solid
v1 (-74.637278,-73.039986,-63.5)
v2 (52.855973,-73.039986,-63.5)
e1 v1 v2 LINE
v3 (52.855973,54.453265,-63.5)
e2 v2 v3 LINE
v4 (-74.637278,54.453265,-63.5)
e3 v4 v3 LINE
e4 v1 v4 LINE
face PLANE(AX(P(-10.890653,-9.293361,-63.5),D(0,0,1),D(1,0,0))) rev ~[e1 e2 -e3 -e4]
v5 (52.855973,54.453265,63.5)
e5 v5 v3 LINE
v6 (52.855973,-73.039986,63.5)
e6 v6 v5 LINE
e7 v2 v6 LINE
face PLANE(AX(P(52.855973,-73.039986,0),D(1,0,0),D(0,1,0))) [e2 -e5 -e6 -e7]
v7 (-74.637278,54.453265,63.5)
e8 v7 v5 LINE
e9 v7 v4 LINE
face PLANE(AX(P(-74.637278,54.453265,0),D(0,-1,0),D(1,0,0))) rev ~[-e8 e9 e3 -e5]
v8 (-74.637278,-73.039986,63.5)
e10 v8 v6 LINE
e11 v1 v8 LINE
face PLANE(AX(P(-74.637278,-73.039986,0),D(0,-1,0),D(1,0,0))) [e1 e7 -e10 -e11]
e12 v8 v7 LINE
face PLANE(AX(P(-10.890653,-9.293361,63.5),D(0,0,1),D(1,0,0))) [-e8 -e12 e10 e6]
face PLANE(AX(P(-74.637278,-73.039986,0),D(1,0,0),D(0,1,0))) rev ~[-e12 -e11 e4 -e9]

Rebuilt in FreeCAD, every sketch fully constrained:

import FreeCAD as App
import Part
import Sketcher
from FreeCAD import Vector
Q = App.Units.Quantity

doc = App.newDocument("Part")
params = doc.addObject("Spreadsheet::Sheet", "Params")
for row, (alias, value) in enumerate([
    ("pad1_length", "5 in"),
], start=1):
    params.set(f"A{row}", alias)
    params.set(f"B{row}", "=" + value)
    params.setAlias(f"B{row}", alias)

body = doc.addObject("PartDesign::Body", "Body")

# Sketch on XY plane
sketch1 = doc.addObject("Sketcher::SketchObject", "Sketch")
body.addObject(sketch1)
sketch1.AttachmentSupport = (doc.XY_Plane, [""])
sketch1.MapMode = "FlatFace"
sketch1.addGeometry(Part.LineSegment(Vector(-74.637278, 54.453265, 0), Vector(-74.637278, -73.039986, 0)), False)
sketch1.addGeometry(Part.LineSegment(Vector(-74.637278, -73.039986, 0), Vector(52.855973, -73.039986, 0)), False)
sketch1.addGeometry(Part.LineSegment(Vector(52.855973, -73.039986, 0), Vector(52.855973, 54.453265, 0)), False)
sketch1.addGeometry(Part.LineSegment(Vector(52.855973, 54.453265, 0), Vector(-74.637278, 54.453265, 0)), False)
sketch1.addConstraint(Sketcher.Constraint("Coincident", 0, 2, 1, 1))
sketch1.addConstraint(Sketcher.Constraint("Coincident", 1, 2, 2, 1))
sketch1.addConstraint(Sketcher.Constraint("Coincident", 2, 2, 3, 1))
sketch1.addConstraint(Sketcher.Constraint("Coincident", 3, 2, 0, 1))
sketch1.addConstraint(Sketcher.Constraint("Vertical", 0))
sketch1.addConstraint(Sketcher.Constraint("Horizontal", 1))
sketch1.addConstraint(Sketcher.Constraint("Vertical", 2))
sketch1.addConstraint(Sketcher.Constraint("Horizontal", 3))
sketch1.addConstraint(Sketcher.Constraint("Equal", 3, 0))
sketch1.addConstraint(Sketcher.Constraint("DistanceX", 1, 1, 1, 2, Q("127.493251 mm")))
sketch1.addConstraint(Sketcher.Constraint("DistanceX", 0, 2, -1, 1, Q("74.637278 mm")))
sketch1.addConstraint(Sketcher.Constraint("DistanceY", 0, 2, -1, 1, Q("73.039986 mm")))
pad1 = doc.addObject("PartDesign::Pad", "Pad")
body.addObject(pad1)
pad1.Profile = sketch1
pad1.setExpression("Length", "Params.pad1_length")
pad1.Midplane = True

doc.recompute()
